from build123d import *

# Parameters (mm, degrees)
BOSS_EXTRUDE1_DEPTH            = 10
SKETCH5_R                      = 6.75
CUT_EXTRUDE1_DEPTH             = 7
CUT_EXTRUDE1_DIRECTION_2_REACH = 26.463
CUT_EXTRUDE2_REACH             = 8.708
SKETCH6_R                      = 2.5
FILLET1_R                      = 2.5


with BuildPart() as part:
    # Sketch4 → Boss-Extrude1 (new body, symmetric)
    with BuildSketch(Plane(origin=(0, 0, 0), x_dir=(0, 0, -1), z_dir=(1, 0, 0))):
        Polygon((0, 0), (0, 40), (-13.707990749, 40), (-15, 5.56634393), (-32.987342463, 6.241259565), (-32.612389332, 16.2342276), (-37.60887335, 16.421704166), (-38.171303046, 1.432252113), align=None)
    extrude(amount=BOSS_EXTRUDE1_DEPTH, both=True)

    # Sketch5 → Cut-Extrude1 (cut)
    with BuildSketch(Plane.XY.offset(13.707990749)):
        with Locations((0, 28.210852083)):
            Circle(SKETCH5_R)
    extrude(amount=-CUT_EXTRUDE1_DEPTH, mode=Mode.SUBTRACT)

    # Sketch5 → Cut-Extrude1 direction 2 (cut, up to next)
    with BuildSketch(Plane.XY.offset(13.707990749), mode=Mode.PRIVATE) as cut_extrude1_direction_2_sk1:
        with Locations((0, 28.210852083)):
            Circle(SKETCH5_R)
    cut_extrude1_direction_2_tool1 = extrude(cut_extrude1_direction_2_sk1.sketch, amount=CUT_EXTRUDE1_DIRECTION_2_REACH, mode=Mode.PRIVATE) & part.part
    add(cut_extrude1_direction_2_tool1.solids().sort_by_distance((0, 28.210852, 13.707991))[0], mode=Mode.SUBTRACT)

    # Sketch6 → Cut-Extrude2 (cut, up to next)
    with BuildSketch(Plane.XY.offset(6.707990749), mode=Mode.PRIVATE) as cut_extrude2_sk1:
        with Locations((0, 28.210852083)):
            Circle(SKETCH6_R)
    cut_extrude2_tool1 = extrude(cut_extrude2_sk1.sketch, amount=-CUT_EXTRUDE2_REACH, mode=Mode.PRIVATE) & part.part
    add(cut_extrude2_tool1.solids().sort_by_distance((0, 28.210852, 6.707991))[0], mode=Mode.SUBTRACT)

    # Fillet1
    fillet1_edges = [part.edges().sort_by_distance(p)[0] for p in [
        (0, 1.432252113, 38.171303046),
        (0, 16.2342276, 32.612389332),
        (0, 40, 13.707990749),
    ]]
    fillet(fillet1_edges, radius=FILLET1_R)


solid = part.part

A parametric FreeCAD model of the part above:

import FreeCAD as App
import Part
import Sketcher

V = App.Vector


def edges_at(feature, points):
    """Names of the edges that pass closest to the given points."""
    edges = feature.Shape.Edges
    near = lambda p: min(range(len(edges)), key=lambda i: edges[i].distToShape(Part.Vertex(*p))[0])
    return sorted({f"Edge{near(p) + 1}" for p in points})

doc = App.newDocument("Part")
params = doc.addObject("Spreadsheet::Sheet", "Params")
for row, (alias, value) in enumerate([
    ("sketch1_width", "40 mm"),
    ("sketch1_length", "18 mm"),
    ("sketch1_length2", "10 mm"),
    ("sketch1_length3", "5 mm"),
    ("sketch1_length4", "15 mm"),
    ("pad1_length", "20 mm"),
    ("sketch2_diameter", "13.5 mm"),
    ("pocket1_length", "7 mm"),
    ("sketch3_diameter", "13.5 mm"),
    ("sketch4_diameter", "5 mm"),
    ("fillet_radius", "2.5 mm"),
], start=1):
    params.set(f"A{row}", alias)
    params.set(f"B{row}", "=" + value)
    params.setAlias(f"B{row}", alias)

body = doc.addObject("PartDesign::Body", "Body")

# Sketch on YZ plane
sketch1 = body.newObject("Sketcher::SketchObject", "Sketch")
sketch1.AttachmentSupport = (doc.getObject("YZ_Plane"), [""])
sketch1.MapMode = "FlatFace"
sketch1.addGeometry([
    Part.LineSegment(V(0, 0, 0), V(40, 0, 0)),  # 0
    Part.LineSegment(V(40, 0, 0), V(40, 14, 0)),  # 1
    Part.LineSegment(V(40, 14, 0), V(6, 15, 0)),  # 2
    Part.LineSegment(V(6, 15, 0), V(6, 33, 0)),  # 3
    Part.LineSegment(V(6, 33, 0), V(16, 33, 0)),  # 4
    Part.LineSegment(V(16, 33, 0), V(16, 38, 0)),  # 5
    Part.LineSegment(V(16, 38, 0), V(1, 38, 0)),  # 6
    Part.LineSegment(V(1, 38, 0), V(0, 0, 0)),  # 7
], False)
sketch1.addConstraint([
    Sketcher.Constraint("Coincident", 0, 2, 1, 1),
    Sketcher.Constraint("Coincident", 1, 2, 2, 1),
    Sketcher.Constraint("Coincident", 2, 2, 3, 1),
    Sketcher.Constraint("Coincident", 3, 2, 4, 1),
    Sketcher.Constraint("Coincident", 4, 2, 5, 1),
    Sketcher.Constraint("Coincident", 5, 2, 6, 1),
    Sketcher.Constraint("Coincident", 6, 2, 7, 1),
    Sketcher.Constraint("Coincident", 7, 2, 0, 1),
    Sketcher.Constraint("Horizontal", 0),
    Sketcher.Constraint("Vertical", 1),
    Sketcher.Constraint("Coincident", 7, 2, -1, 1),
    Sketcher.Constraint("Perpendicular", 2, 3),
    Sketcher.Constraint("Perpendicular", 3, 4),
    Sketcher.Constraint("Perpendicular", 4, 5),
    Sketcher.Constraint("Perpendicular", 5, 6),
    Sketcher.Constraint("Perpendicular", 6, 7),
    Sketcher.Constraint("DistanceX", 0, 1, 0, 2, 40.0),
    Sketcher.Constraint("Distance", 3, 18.0),
    Sketcher.Constraint("Distance", 4, 10.0),
    Sketcher.Constraint("Distance", 5, 5.0),
    Sketcher.Constraint("Distance", 6, 15.0),
    Sketcher.Constraint("DistanceY", -1, 1, 2, 2, 15.0),
    Sketcher.Constraint("DistanceY", 1, 1, 1, 2, 13.707991),
])
sketch1.setExpression("Constraints[16]", "Params.sketch1_width")
sketch1.setExpression("Constraints[17]", "Params.sketch1_length")
sketch1.setExpression("Constraints[18]", "Params.sketch1_length2")
sketch1.setExpression("Constraints[19]", "Params.sketch1_length3")
sketch1.setExpression("Constraints[20]", "Params.sketch1_length4")
pad1 = body.newObject("PartDesign::Pad", "Pad")
pad1.Profile = sketch1
pad1.setExpression("Length", "Params.pad1_length")
pad1.Midplane = True

# Sketch on XY plane
sketch2 = body.newObject("Sketcher::SketchObject", "Sketch001")
sketch2.AttachmentSupport = (doc.getObject("XY_Plane"), [""])
sketch2.MapMode = "FlatFace"
sketch2.AttachmentOffset = App.Placement(V(0, 0, 13.707991), App.Rotation())
sketch2.addGeometry(Part.Circle(V(0, 28, 0), V(0, 0, 1), 7), False)
sketch2.addConstraint([
    Sketcher.Constraint("PointOnObject", 0, 3, -2),
    Sketcher.Constraint("Diameter", 0, 13.5),
    Sketcher.Constraint("DistanceY", -1, 1, 0, 3, 28.210852),
])
sketch2.setExpression("Constraints[1]", "Params.sketch2_diameter")
pocket1 = body.newObject("PartDesign::Pocket", "Pocket")
pocket1.Profile = sketch2
pocket1.setExpression("Length", "Params.pocket1_length")

# Sketch on XY plane
sketch3 = body.newObject("Sketcher::SketchObject", "Sketch002")
sketch3.AttachmentSupport = (doc.getObject("XY_Plane"), [""])
sketch3.MapMode = "FlatFace"
sketch3.AttachmentOffset = App.Placement(V(0, 0, 13.707991), App.Rotation())
sketch3.addGeometry(Part.Circle(V(0, 28, 0), V(0, 0, 1), 7), False)
sketch3.addConstraint([
    Sketcher.Constraint("PointOnObject", 0, 3, -2),
    Sketcher.Constraint("Diameter", 0, 13.5),
    Sketcher.Constraint("DistanceY", -1, 1, 0, 3, 28.210852),
])
sketch3.setExpression("Constraints[1]", "Params.sketch3_diameter")
pocket2 = body.newObject("PartDesign::Pocket", "Pocket001")
pocket2.Profile = sketch3
pocket2.Type = "UpToFirst"
pocket2.Reversed = True

# Sketch on XY plane
sketch4 = body.newObject("Sketcher::SketchObject", "Sketch003")
sketch4.AttachmentSupport = (doc.getObject("XY_Plane"), [""])
sketch4.MapMode = "FlatFace"
sketch4.AttachmentOffset = App.Placement(V(0, 0, 6.707991), App.Rotation())
sketch4.addGeometry(Part.Circle(V(0, 28.2, 0), V(0, 0, 1), 2.5), False)
sketch4.addConstraint([
    Sketcher.Constraint("PointOnObject", 0, 3, -2),
    Sketcher.Constraint("Diameter", 0, 5.0),
    Sketcher.Constraint("DistanceY", -1, 1, 0, 3, 28.210852),
])
sketch4.setExpression("Constraints[1]", "Params.sketch4_diameter")
pocket3 = body.newObject("PartDesign::Pocket", "Pocket002")
pocket3.Profile = sketch4
pocket3.Type = "UpToFirst"
doc.recompute()

fillet = body.newObject("PartDesign::Fillet", "Fillet")
fillet.Base = (pocket3, edges_at(pocket3, [(0, 1.432, 38.171), (0, 16.234, 32.612), (0, 40, 13.708)]))
fillet.setExpression("Radius", "Params.fillet_radius")

doc.recompute()
